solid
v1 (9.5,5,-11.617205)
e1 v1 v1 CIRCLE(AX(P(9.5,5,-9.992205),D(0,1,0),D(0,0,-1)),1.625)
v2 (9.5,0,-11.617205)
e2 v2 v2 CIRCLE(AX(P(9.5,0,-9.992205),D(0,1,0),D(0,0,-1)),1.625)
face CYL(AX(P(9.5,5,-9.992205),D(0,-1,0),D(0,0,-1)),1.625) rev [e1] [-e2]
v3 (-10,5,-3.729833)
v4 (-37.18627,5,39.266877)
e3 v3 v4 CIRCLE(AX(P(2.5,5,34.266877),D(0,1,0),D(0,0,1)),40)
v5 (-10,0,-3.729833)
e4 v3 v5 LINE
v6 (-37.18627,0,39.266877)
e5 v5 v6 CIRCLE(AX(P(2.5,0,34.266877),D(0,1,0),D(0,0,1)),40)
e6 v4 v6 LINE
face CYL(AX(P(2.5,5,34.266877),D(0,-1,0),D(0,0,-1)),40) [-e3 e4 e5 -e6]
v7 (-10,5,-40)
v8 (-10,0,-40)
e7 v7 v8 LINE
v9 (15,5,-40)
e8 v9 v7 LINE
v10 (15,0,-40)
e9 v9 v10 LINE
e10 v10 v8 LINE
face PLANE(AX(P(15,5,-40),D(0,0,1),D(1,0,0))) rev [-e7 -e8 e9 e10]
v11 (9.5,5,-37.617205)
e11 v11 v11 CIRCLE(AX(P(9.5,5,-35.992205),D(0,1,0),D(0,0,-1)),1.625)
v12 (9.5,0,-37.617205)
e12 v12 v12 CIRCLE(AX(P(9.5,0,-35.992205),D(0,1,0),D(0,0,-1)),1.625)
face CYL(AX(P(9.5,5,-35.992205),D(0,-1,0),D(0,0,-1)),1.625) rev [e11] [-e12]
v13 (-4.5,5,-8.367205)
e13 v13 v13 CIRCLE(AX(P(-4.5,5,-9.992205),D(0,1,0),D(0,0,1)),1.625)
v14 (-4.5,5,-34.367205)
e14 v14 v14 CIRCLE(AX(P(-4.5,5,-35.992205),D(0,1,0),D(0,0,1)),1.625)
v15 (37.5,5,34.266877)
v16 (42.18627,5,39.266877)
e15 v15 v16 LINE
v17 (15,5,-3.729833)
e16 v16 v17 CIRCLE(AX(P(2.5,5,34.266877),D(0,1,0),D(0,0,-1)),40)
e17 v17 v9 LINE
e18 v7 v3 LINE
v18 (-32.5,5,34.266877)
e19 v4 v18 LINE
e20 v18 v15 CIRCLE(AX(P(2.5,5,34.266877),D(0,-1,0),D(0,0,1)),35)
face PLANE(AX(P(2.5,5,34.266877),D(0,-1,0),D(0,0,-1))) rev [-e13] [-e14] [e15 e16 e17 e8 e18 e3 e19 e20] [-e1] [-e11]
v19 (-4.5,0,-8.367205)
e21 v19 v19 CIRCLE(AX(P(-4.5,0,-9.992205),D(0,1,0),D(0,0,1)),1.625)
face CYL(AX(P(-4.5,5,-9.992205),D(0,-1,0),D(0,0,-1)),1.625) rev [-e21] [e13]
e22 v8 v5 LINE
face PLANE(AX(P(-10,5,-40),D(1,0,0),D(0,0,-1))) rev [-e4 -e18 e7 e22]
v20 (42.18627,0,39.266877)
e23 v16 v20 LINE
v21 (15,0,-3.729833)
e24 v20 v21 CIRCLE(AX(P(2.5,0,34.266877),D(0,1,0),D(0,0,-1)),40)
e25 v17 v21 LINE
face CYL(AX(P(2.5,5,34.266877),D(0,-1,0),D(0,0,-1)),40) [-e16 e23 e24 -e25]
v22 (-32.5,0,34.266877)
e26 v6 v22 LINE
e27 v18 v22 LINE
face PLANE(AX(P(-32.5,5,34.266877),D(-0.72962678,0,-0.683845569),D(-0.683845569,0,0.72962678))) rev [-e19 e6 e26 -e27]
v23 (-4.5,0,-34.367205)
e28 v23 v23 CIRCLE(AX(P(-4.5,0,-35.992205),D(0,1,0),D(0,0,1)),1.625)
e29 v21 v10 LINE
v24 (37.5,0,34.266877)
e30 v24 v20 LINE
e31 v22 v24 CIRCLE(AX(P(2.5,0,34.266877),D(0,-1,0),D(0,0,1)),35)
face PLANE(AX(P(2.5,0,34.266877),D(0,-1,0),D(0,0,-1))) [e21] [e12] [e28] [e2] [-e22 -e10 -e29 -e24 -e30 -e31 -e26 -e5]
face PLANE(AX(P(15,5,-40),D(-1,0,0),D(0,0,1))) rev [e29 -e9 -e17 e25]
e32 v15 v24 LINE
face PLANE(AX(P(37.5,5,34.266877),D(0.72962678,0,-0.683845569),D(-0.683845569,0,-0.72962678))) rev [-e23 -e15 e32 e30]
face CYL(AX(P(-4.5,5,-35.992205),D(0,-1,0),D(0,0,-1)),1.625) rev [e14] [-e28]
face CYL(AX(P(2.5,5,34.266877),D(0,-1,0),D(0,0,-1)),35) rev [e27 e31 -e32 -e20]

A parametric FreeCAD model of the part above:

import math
import FreeCAD as App
import Part
import Sketcher
from FreeCAD import Vector

doc = App.newDocument("Part")
body = doc.addObject("PartDesign::Body", "Body")

sketch1 = body.newObject("Sketcher::SketchObject", "Sketch")
sketch1.AttachmentSupport = (doc.getObject("XZ_Plane"), [""])
sketch1.MapMode = "FlatFace"
sketch1.addGeometry([
    Part.LineSegment(Vector(15, -40, 0), Vector(-10, -40, 0)),
    Part.LineSegment(Vector(-10, -40, 0), Vector(-10, -3.7, 0)),
    Part.ArcOfCircle(Part.Circle(Vector(2.5, 34.3, 0), Vector(0, 0, 1), 40), math.radians(173), math.radians(252)),
    Part.LineSegment(Vector(-37.2, 39.3, 0), Vector(-32.5, 34.3, 0)),
    Part.ArcOfCircle(Part.Circle(Vector(2.5, 34.3, 0), Vector(0, 0, 1), 35), math.radians(180), math.radians(360)),
    Part.LineSegment(Vector(37.5, 34.3, 0), Vector(42.2, 39.3, 0)),
    Part.ArcOfCircle(Part.Circle(Vector(2.5, 34.3, 0), Vector(0, 0, 1), 40), math.radians(-72), math.radians(7)),
    Part.LineSegment(Vector(15, -3.7, 0), Vector(15, -40, 0)),
    Part.Circle(Vector(-4.5, -10, 0), Vector(0, 0, 1), 1.6),
    Part.Circle(Vector(9.5, -10, 0), Vector(0, 0, 1), 1.6),
    Part.Circle(Vector(-4.5, -36, 0), Vector(0, 0, 1), 1.6),
    Part.Circle(Vector(9.5, -36, 0), Vector(0, 0, 1), 1.6),
], False)
sketch1.addConstraint([
    Sketcher.Constraint("Coincident", 0, 2, 1, 1),
    Sketcher.Constraint("Coincident", 1, 2, 2, 2),
    Sketcher.Constraint("Coincident", 2, 1, 3, 1),
    Sketcher.Constraint("Coincident", 3, 2, 4, 1),
    Sketcher.Constraint("Coincident", 4, 2, 5, 1),
    Sketcher.Constraint("Coincident", 5, 2, 6, 2),
    Sketcher.Constraint("Coincident", 6, 1, 7, 1),
    Sketcher.Constraint("Coincident", 7, 2, 0, 1),
    Sketcher.Constraint("Horizontal", 0),
    Sketcher.Constraint("Vertical", 1),
    Sketcher.Constraint("Vertical", 7),
    Sketcher.Constraint("Coincident", 4, 3, 2, 3),
    Sketcher.Constraint("Coincident", 6, 3, 2, 3),
    Sketcher.Constraint("Equal", 2, 6),
    Sketcher.Constraint("Equal", 8, 9),
    Sketcher.Constraint("Equal", 9, 10),
    Sketcher.Constraint("Equal", 10, 11),
    Sketcher.Constraint("Horizontal", 8, 3, 9, 3),
    Sketcher.Constraint("Horizontal", 10, 3, 11, 3),
    Sketcher.Constraint("Horizontal", 6, 3, 3, 2),
    Sketcher.Constraint("Horizontal", 3, 2, 4, 2),
    Sketcher.Constraint("Horizontal", 2, 1, 5, 2),
    Sketcher.Constraint("Horizontal", 1, 2, 6, 1),
    Sketcher.Constraint("Vertical", 8, 3, 10, 3),
    Sketcher.Constraint("Vertical", 9, 3, 11, 3),
    Sketcher.Constraint("Radius", 2, 40.0),
    Sketcher.Constraint("Radius", 4, 35.0),
    Sketcher.Constraint("Diameter", 8, 3.25),
    Sketcher.Constraint("DistanceX", 0, 2, 0, 1, 25.0),
    Sketcher.Constraint("DistanceX", 0, 2, -1, 1, 10.0),
    Sketcher.Constraint("DistanceY", 0, 2, -1, 1, 40.0),
    Sketcher.Constraint("DistanceX", 8, 3, 2, 3, 7.0),
    Sketcher.Constraint("DistanceX", 8, 3, 9, 3, 14.0),
    Sketcher.Constraint("DistanceY", 10, 3, 8, 3, 26.0),
    Sketcher.Constraint("DistanceY", 2, 3, 2, 1, 5.0),
    Sketcher.Constraint("DistanceY", 1, 1, 1, 2, 36.270167),
    Sketcher.Constraint("DistanceY", 8, 3, 2, 3, 44.259082),
])
pad1 = body.newObject("PartDesign::Pad", "Pad")
pad1.Profile = sketch1
pad1.Length = 5
pad1.Reversed = True

doc.recompute()
